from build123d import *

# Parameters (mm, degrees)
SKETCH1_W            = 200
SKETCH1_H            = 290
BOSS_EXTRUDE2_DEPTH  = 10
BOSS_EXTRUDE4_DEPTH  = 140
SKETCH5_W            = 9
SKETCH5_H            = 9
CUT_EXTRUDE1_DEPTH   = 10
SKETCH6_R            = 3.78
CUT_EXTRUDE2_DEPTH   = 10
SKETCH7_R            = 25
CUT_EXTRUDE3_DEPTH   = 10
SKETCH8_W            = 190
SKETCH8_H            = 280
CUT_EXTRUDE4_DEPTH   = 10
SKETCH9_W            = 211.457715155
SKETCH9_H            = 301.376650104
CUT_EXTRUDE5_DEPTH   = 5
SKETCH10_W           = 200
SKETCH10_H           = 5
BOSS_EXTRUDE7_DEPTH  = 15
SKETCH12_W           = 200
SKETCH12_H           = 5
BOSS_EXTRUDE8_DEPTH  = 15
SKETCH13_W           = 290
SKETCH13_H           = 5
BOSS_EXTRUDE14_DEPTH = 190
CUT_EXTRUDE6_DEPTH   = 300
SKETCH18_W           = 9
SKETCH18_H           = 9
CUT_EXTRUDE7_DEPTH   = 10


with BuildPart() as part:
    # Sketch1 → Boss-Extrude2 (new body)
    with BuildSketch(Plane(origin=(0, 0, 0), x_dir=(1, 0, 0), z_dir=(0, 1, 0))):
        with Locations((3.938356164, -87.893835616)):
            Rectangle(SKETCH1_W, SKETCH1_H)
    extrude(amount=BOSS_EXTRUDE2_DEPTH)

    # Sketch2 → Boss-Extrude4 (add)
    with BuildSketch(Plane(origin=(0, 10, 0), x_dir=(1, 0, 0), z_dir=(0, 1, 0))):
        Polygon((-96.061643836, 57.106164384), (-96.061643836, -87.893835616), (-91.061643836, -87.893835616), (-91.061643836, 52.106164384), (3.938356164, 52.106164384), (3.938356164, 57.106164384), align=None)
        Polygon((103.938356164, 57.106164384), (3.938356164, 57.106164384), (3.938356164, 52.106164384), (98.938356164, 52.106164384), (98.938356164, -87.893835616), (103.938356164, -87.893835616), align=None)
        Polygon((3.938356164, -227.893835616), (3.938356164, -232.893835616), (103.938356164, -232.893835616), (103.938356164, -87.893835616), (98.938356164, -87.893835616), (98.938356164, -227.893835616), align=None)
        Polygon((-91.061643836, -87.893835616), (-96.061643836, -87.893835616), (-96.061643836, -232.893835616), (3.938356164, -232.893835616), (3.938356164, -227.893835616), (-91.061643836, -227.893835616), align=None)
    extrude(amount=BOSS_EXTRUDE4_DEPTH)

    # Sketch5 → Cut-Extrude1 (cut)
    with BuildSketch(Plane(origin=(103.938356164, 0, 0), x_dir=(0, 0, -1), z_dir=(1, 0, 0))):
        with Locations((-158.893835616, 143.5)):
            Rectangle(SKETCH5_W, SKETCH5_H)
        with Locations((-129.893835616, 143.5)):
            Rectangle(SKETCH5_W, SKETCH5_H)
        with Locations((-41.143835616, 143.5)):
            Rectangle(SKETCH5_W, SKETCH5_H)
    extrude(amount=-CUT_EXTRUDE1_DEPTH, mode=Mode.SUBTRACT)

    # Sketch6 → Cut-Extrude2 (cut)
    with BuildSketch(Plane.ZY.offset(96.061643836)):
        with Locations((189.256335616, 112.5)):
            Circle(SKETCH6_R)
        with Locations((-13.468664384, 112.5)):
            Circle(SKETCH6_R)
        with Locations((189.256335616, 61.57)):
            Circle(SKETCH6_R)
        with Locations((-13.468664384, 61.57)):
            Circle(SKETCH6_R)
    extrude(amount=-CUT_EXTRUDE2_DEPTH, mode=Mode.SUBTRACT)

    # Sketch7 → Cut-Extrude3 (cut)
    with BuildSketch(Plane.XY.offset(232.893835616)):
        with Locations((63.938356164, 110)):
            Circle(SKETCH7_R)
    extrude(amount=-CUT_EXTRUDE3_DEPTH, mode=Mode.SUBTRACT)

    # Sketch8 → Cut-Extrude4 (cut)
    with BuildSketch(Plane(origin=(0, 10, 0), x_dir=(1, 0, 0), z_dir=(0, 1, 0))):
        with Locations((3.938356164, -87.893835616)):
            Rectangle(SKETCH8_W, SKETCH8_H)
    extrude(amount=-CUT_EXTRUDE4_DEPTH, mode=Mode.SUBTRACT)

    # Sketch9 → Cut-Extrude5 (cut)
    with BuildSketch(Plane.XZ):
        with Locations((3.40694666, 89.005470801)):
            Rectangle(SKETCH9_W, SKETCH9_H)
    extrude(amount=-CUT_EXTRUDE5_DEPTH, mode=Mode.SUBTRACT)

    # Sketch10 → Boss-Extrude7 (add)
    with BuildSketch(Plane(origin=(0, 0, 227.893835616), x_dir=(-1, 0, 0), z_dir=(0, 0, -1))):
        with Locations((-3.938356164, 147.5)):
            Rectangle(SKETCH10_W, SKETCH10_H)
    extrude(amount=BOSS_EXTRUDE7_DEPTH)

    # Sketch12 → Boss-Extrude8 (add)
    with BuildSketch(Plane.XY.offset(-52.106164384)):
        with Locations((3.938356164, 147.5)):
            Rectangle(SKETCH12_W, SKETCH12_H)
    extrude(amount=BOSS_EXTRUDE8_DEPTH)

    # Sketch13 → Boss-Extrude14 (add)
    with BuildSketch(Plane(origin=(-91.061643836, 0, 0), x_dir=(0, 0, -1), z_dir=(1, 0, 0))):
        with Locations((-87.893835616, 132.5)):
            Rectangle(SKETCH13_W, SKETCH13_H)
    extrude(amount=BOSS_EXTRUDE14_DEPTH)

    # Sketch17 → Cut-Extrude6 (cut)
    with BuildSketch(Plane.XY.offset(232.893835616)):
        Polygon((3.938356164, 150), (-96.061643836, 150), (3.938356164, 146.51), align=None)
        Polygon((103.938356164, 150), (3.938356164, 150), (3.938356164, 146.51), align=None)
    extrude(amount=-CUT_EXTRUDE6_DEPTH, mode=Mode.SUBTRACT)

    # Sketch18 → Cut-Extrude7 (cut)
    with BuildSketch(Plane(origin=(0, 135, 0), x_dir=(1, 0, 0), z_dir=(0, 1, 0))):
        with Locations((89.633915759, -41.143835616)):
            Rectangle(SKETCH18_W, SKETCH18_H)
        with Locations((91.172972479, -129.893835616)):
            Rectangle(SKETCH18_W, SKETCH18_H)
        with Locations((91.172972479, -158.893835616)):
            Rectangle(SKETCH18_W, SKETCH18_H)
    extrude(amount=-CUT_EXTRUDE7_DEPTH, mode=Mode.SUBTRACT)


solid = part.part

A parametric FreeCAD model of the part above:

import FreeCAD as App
import Part
import Sketcher

doc = App.newDocument("Part")
params = doc.addObject("Spreadsheet::Sheet", "Params")
for row, (alias, value) in enumerate([
    ("sketch1_width", "200 mm"),
    ("sketch1_height", "290 mm"),
    ("pad1_length", "10 mm"),
    ("sketch2_width", "200 mm"),
    ("sketch2_width2", "190 mm"),
    ("sketch2_height", "290 mm"),
    ("sketch2_height2", "280 mm"),
    ("pad2_length", "140 mm"),
    ("sketch3_width", "9 mm"),
    ("pocket1_length", "10 mm"),
    ("sketch4_diameter", "7.56 mm"),
    ("pocket2_length", "10 mm"),
    ("sketch5_diameter", "50 mm"),
    ("pocket3_length", "10 mm"),
    ("sketch6_width", "190 mm"),
    ("sketch6_height", "280 mm"),
    ("pocket4_length", "10 mm"),
    ("pocket5_length", "5 mm"),
    ("sketch8_width", "200 mm"),
    ("sketch8_height", "5 mm"),
    ("pad3_length", "15 mm"),
    ("sketch9_width", "200 mm"),
    ("sketch9_height", "5 mm"),
    ("pad4_length", "15 mm"),
    ("sketch10_width", "5 mm"),
    ("sketch10_height", "290 mm"),
    ("pad5_length", "190 mm"),
    ("sketch11_width", "200 mm"),
    ("pocket6_length", "300 mm"),
    ("sketch12_width", "9 mm"),
    ("pocket7_length", "10 mm"),
], start=1):
    params.set(f"A{row}", alias)
    params.set(f"B{row}", "=" + value)
    params.setAlias(f"B{row}", alias)

body = doc.addObject("PartDesign::Body", "Body")

sketch1 = body.newObject("Sketcher::SketchObject", "Sketch")
sketch1.AttachmentSupport = (doc.getObject("XZ_Plane"), [""])
sketch1.MapMode = "FlatFace"
sketch1.addGeometry([
    Part.LineSegment(App.Vector(-96, -57, 0), App.Vector(-96, 233, 0)),
    Part.LineSegment(App.Vector(-96, 233, 0), App.Vector(104, 233, 0)),
    Part.LineSegment(App.Vector(104, 233, 0), App.Vector(104, -57, 0)),
    Part.LineSegment(App.Vector(104, -57, 0), App.Vector(-96, -57, 0)),
], False)
sketch1.addConstraint([
    Sketcher.Constraint("Coincident", 0, 2, 1, 1),
    Sketcher.Constraint("Coincident", 1, 2, 2, 1),
    Sketcher.Constraint("Coincident", 2, 2, 3, 1),
    Sketcher.Constraint("Coincident", 3, 2, 0, 1),
    Sketcher.Constraint("Vertical", 0),
    Sketcher.Constraint("Horizontal", 1),
    Sketcher.Constraint("Vertical", 2),
    Sketcher.Constraint("Horizontal", 3),
    Sketcher.Constraint("DistanceX", 1, 1, 1, 2, 200.0),
    Sketcher.Constraint("DistanceY", 0, 1, 0, 2, 290.0),
    Sketcher.Constraint("DistanceX", 0, 2, -1, 1, 96.061644),
    Sketcher.Constraint("DistanceY", -1, 1, 0, 2, 232.893836),
])
sketch1.setExpression("Constraints[8]", "Params.sketch1_width")
sketch1.setExpression("Constraints[9]", "Params.sketch1_height")
pad1 = body.newObject("PartDesign::Pad", "Pad")
pad1.Profile = sketch1
pad1.setExpression("Length", "Params.pad1_length")
pad1.Reversed = True

sketch2 = body.newObject("Sketcher::SketchObject", "Sketch001")
sketch2.AttachmentSupport = (doc.getObject("XZ_Plane"), [""])
sketch2.MapMode = "FlatFace"
sketch2.AttachmentOffset = App.Placement(App.Vector(0, 0, -10), App.Rotation())
sketch2.addGeometry([
    Part.LineSegment(App.Vector(-96, -57, 0), App.Vector(-96, 233, 0)),
    Part.LineSegment(App.Vector(-96, 233, 0), App.Vector(104, 233, 0)),
    Part.LineSegment(App.Vector(104, 233, 0), App.Vector(104, -57, 0)),
    Part.LineSegment(App.Vector(104, -57, 0), App.Vector(-96, -57, 0)),
    Part.LineSegment(App.Vector(-91, -52, 0), App.Vector(99, -52, 0)),
    Part.LineSegment(App.Vector(99, -52, 0), App.Vector(99, 228, 0)),
    Part.LineSegment(App.Vector(99, 228, 0), App.Vector(-91, 228, 0)),
    Part.LineSegment(App.Vector(-91, 228, 0), App.Vector(-91, -52, 0)),
], False)
sketch2.addConstraint([
    Sketcher.Constraint("Coincident", 0, 2, 1, 1),
    Sketcher.Constraint("Coincident", 1, 2, 2, 1),
    Sketcher.Constraint("Coincident", 2, 2, 3, 1),
    Sketcher.Constraint("Coincident", 3, 2, 0, 1),
    Sketcher.Constraint("Coincident", 4, 2, 5, 1),
    Sketcher.Constraint("Coincident", 5, 2, 6, 1),
    Sketcher.Constraint("Coincident", 6, 2, 7, 1),
    Sketcher.Constraint("Coincident", 7, 2, 4, 1),
    Sketcher.Constraint("Vertical", 0),
    Sketcher.Constraint("Horizontal", 1),
    Sketcher.Constraint("Vertical", 2),
    Sketcher.Constraint("Horizontal", 3),
    Sketcher.Constraint("Horizontal", 4),
    Sketcher.Constraint("Vertical", 5),
    Sketcher.Constraint("Horizontal", 6),
    Sketcher.Constraint("Vertical", 7),
    Sketcher.Constraint("DistanceX", 1, 1, 1, 2, 200.0),
    Sketcher.Constraint("DistanceX", 4, 1, 4, 2, 190.0),
    Sketcher.Constraint("DistanceY", 0, 1, 0, 2, 290.0),
    Sketcher.Constraint("DistanceY", 5, 1, 5, 2, 280.0),
    Sketcher.Constraint("DistanceX", 4, 2, 2, 2, 5.0),
    Sketcher.Constraint("DistanceY", 2, 2, 4, 2, 5.0),
    Sketcher.Constraint("DistanceX", 0, 2, -1, 1, 96.061644),
    Sketcher.Constraint("DistanceY", -1, 1, 0, 2, 232.893836),
])
sketch2.setExpression("Constraints[16]", "Params.sketch2_width")
sketch2.setExpression("Constraints[17]", "Params.sketch2_width2")
sketch2.setExpression("Constraints[18]", "Params.sketch2_height")
sketch2.setExpression("Constraints[19]", "Params.sketch2_height2")
pad2 = body.newObject("PartDesign::Pad", "Pad001")
pad2.Profile = sketch2
pad2.setExpression("Length", "Params.pad2_length")
pad2.Reversed = True

sketch3 = body.newObject("Sketcher::SketchObject", "Sketch002")
sketch3.AttachmentSupport = (doc.getObject("YZ_Plane"), [""])
sketch3.MapMode = "FlatFace"
sketch3.AttachmentOffset = App.Placement(App.Vector(0, 0, 103.938356), App.Rotation())
sketch3.addGeometry([
    Part.LineSegment(App.Vector(148, 163, 0), App.Vector(139, 163, 0)),
    Part.LineSegment(App.Vector(139, 163, 0), App.Vector(139, 154, 0)),
    Part.LineSegment(App.Vector(139, 154, 0), App.Vector(148, 154, 0)),
    Part.LineSegment(App.Vector(148, 154, 0), App.Vector(148, 163, 0)),
    Part.LineSegment(App.Vector(148, 134, 0), App.Vector(139, 134, 0)),
    Part.LineSegment(App.Vector(139, 134, 0), App.Vector(139, 125, 0)),
    Part.LineSegment(App.Vector(139, 125, 0), App.Vector(148, 125, 0)),
    Part.LineSegment(App.Vector(148, 125, 0), App.Vector(148, 134, 0)),
    Part.LineSegment(App.Vector(148, 46, 0), App.Vector(139, 46, 0)),
    Part.LineSegment(App.Vector(139, 46, 0), App.Vector(139, 37, 0)),
    Part.LineSegment(App.Vector(139, 37, 0), App.Vector(148, 37, 0)),
    Part.LineSegment(App.Vector(148, 37, 0), App.Vector(148, 46, 0)),
], False)
sketch3.addConstraint([
    Sketcher.Constraint("Coincident", 0, 2, 1, 1),
    Sketcher.Constraint("Coincident", 1, 2, 2, 1),
    Sketcher.Constraint("Coincident", 2, 2, 3, 1),
    Sketcher.Constraint("Coincident", 3, 2, 0, 1),
    Sketcher.Constraint("Coincident", 4, 2, 5, 1),
    Sketcher.Constraint("Coincident", 5, 2, 6, 1),
    Sketcher.Constraint("Coincident", 6, 2, 7, 1),
    Sketcher.Constraint("Coincident", 7, 2, 4, 1),
    Sketcher.Constraint("Coincident", 8, 2, 9, 1),
    Sketcher.Constraint("Coincident", 9, 2, 10, 1),
    Sketcher.Constraint("Coincident", 10, 2, 11, 1),
    Sketcher.Constraint("Coincident", 11, 2, 8, 1),
    Sketcher.Constraint("Horizontal", 0),
    Sketcher.Constraint("Vertical", 1),
    Sketcher.Constraint("Horizontal", 2),
    Sketcher.Constraint("Vertical", 3),
    Sketcher.Constraint("Horizontal", 4),
    Sketcher.Constraint("Vertical", 5),
    Sketcher.Constraint("Horizontal", 6),
    Sketcher.Constraint("Vertical", 7),
    Sketcher.Constraint("Horizontal", 8),
    Sketcher.Constraint("Vertical", 9),
    Sketcher.Constraint("Horizontal", 10),
    Sketcher.Constraint("Vertical", 11),
    Sketcher.Constraint("Vertical", 1, 2, 4, 2),
    Sketcher.Constraint("Vertical", 3, 2, 6, 2),
    Sketcher.Constraint("Vertical", 5, 2, 8, 2),
    Sketcher.Constraint("Vertical", 7, 2, 10, 2),
    Sketcher.Constraint("Equal", 10, 1),
    Sketcher.Constraint("Equal", 3, 5),
    Sketcher.Constraint("Equal", 7, 9),
    Sketcher.Constraint("DistanceX", 0, 2, 0, 1, 9.0),
    Sketcher.Constraint("DistanceX", -1, 1, 0, 2, 139.0),
    Sketcher.Constraint("DistanceY", 4, 2, 1, 2, 20.0),
    Sketcher.Constraint("DistanceY", 8, 2, 5, 2, 79.75),
    Sketcher.Constraint("DistanceY", -1, 1, 0, 2, 163.393836),
])
sketch3.setExpression("Constraints[31]", "Params.sketch3_width")
pocket1 = body.newObject("PartDesign::Pocket", "Pocket")
pocket1.Profile = sketch3
pocket1.setExpression("Length", "Params.pocket1_length")

sketch4 = body.newObject("Sketcher::SketchObject", "Sketch003")
sketch4.AttachmentSupport = (doc.getObject("YZ_Plane"), [""])
sketch4.MapMode = "FlatFace"
sketch4.AttachmentOffset = App.Placement(App.Vector(0, 0, -96.061644), App.Rotation())
sketch4.addGeometry([
    Part.Circle(App.Vector(112.5, 189.3, 0), App.Vector(0, 0, 1), 3.8),
    Part.Circle(App.Vector(112.5, -13.5, 0), App.Vector(0, 0, 1), 3.8),
    Part.Circle(App.Vector(61.6, 189.3, 0), App.Vector(0, 0, 1), 3.8),
    Part.Circle(App.Vector(61.6, -13.5, 0), App.Vector(0, 0, 1), 3.8),
], False)
sketch4.addConstraint([
    Sketcher.Constraint("Equal", 0, 1),
    Sketcher.Constraint("Equal", 1, 2),
    Sketcher.Constraint("Equal", 2, 3),
    Sketcher.Constraint("Horizontal", 0, 3, 2, 3),
    Sketcher.Constraint("Horizontal", 1, 3, 3, 3),
    Sketcher.Constraint("Vertical", 0, 3, 1, 3),
    Sketcher.Constraint("Vertical", 2, 3, 3, 3),
    Sketcher.Constraint("Diameter", 0, 7.56),
    Sketcher.Constraint("DistanceX", -1, 1, 0, 3, 112.5),
    Sketcher.Constraint("DistanceX", -1, 1, 2, 3, 61.57),
    Sketcher.Constraint("DistanceY", 1, 3, 0, 3, 202.725),
    Sketcher.Constraint("DistanceY", -1, 1, 0, 3, 189.256336),
])
sketch4.setExpression("Constraints[7]", "Params.sketch4_diameter")
pocket2 = body.newObject("PartDesign::Pocket", "Pocket001")
pocket2.Profile = sketch4
pocket2.setExpression("Length", "Params.pocket2_length")
pocket2.Reversed = True

sketch5 = body.newObject("Sketcher::SketchObject", "Sketch004")
sketch5.AttachmentSupport = (doc.getObject("XY_Plane"), [""])
sketch5.MapMode = "FlatFace"
sketch5.AttachmentOffset = App.Placement(App.Vector(0, 0, 232.893836), App.Rotation())
sketch5.addGeometry(Part.Circle(App.Vector(64, 110, 0), App.Vector(0, 0, 1), 25), False)
sketch5.addConstraint([
    Sketcher.Constraint("Diameter", 0, 50.0),
    Sketcher.Constraint("DistanceY", -1, 1, 0, 3, 110.0),
    Sketcher.Constraint("DistanceX", -1, 1, 0, 3, 63.938356),
])
sketch5.setExpression("Constraints[0]", "Params.sketch5_diameter")
pocket3 = body.newObject("PartDesign::Pocket", "Pocket002")
pocket3.Profile = sketch5
pocket3.setExpression("Length", "Params.pocket3_length")

sketch6 = body.newObject("Sketcher::SketchObject", "Sketch005")
sketch6.AttachmentSupport = (doc.getObject("XZ_Plane"), [""])
sketch6.MapMode = "FlatFace"
sketch6.AttachmentOffset = App.Placement(App.Vector(0, 0, -10), App.Rotation())
sketch6.addGeometry([
    Part.LineSegment(App.Vector(-91, -52, 0), App.Vector(-91, 228, 0)),
    Part.LineSegment(App.Vector(-91, 228, 0), App.Vector(99, 228, 0)),
    Part.LineSegment(App.Vector(99, 228, 0), App.Vector(99, -52, 0)),
    Part.LineSegment(App.Vector(99, -52, 0), App.Vector(-91, -52, 0)),
], False)
sketch6.addConstraint([
    Sketcher.Constraint("Coincident", 0, 2, 1, 1),
    Sketcher.Constraint("Coincident", 1, 2, 2, 1),
    Sketcher.Constraint("Coincident", 2, 2, 3, 1),
    Sketcher.Constraint("Coincident", 3, 2, 0, 1),
    Sketcher.Constraint("Vertical", 0),
    Sketcher.Constraint("Horizontal", 1),
    Sketcher.Constraint("Vertical", 2),
    Sketcher.Constraint("Horizontal", 3),
    Sketcher.Constraint("DistanceX", 1, 1, 1, 2, 190.0),
    Sketcher.Constraint("DistanceY", 0, 1, 0, 2, 280.0),
    Sketcher.Constraint("DistanceX", 0, 2, -1, 1, 91.061644),
    Sketcher.Constraint("DistanceY", -1, 1, 0, 2, 227.893836),
])
sketch6.setExpression("Constraints[8]", "Params.sketch6_width")
sketch6.setExpression("Constraints[9]", "Params.sketch6_height")
pocket4 = body.newObject("PartDesign::Pocket", "Pocket003")
pocket4.Profile = sketch6
pocket4.setExpression("Length", "Params.pocket4_length")
pocket4.Reversed = True

sketch7 = body.newObject("Sketcher::SketchObject", "Sketch006")
sketch7.AttachmentSupport = (doc.getObject("XZ_Plane"), [""])
sketch7.MapMode = "FlatFace"
sketch7.addGeometry([
    Part.LineSegment(App.Vector(-102, 240, 0), App.Vector(-102, -62, 0)),
    Part.LineSegment(App.Vector(-102, -62, 0), App.Vector(109, -62, 0)),
    Part.LineSegment(App.Vector(109, -62, 0), App.Vector(109, 240, 0)),
    Part.LineSegment(App.Vector(109, 240, 0), App.Vector(-102, 240, 0)),
], False)
sketch7.addConstraint([
    Sketcher.Constraint("Coincident", 0, 2, 1, 1),
    Sketcher.Constraint("Coincident", 1, 2, 2, 1),
    Sketcher.Constraint("Coincident", 2, 2, 3, 1),
    Sketcher.Constraint("Coincident", 3, 2, 0, 1),
    Sketcher.Constraint("Vertical", 0),
    Sketcher.Constraint("Horizontal", 1),
    Sketcher.Constraint("Vertical", 2),
    Sketcher.Constraint("Horizontal", 3),
    Sketcher.Constraint("DistanceY", 0, 2, 0, 1, 301.37665),
    Sketcher.Constraint("DistanceX", 1, 1, 1, 2, 211.457715),
    Sketcher.Constraint("DistanceX", 0, 2, -1, 1, 102.321911),
    Sketcher.Constraint("DistanceY", 0, 2, -1, 1, 61.682854),
])
pocket5 = body.newObject("PartDesign::Pocket", "Pocket004")
pocket5.Profile = sketch7
pocket5.setExpression("Length", "Params.pocket5_length")

sketch8 = body.newObject("Sketcher::SketchObject", "Sketch007")
sketch8.AttachmentSupport = (doc.getObject("XY_Plane"), [""])
sketch8.MapMode = "FlatFace"
sketch8.AttachmentOffset = App.Placement(App.Vector(0, 0, 227.893836), App.Rotation())
sketch8.addGeometry([
    Part.LineSegment(App.Vector(104, 150, 0), App.Vector(104, 145, 0)),
    Part.LineSegment(App.Vector(104, 145, 0), App.Vector(-96, 145, 0)),
    Part.LineSegment(App.Vector(-96, 145, 0), App.Vector(-96, 150, 0)),
    Part.LineSegment(App.Vector(-96, 150, 0), App.Vector(104, 150, 0)),
], False)
sketch8.addConstraint([
    Sketcher.Constraint("Coincident", 0, 2, 1, 1),
    Sketcher.Constraint("Coincident", 1, 2, 2, 1),
    Sketcher.Constraint("Coincident", 2, 2, 3, 1),
    Sketcher.Constraint("Coincident", 3, 2, 0, 1),
    Sketcher.Constraint("Vertical", 0),
    Sketcher.Constraint("Horizontal", 1),
    Sketcher.Constraint("Vertical", 2),
    Sketcher.Constraint("Horizontal", 3),
    Sketcher.Constraint("DistanceX", 1, 2, 1, 1, 200.0),
    Sketcher.Constraint("DistanceY", 0, 2, 0, 1, 5.0),
    Sketcher.Constraint("DistanceY", -1, 1, 0, 2, 145.0),
    Sketcher.Constraint("DistanceX", -1, 1, 0, 2, 103.938356),
])
sketch8.setExpression("Constraints[8]", "Params.sketch8_width")
sketch8.setExpression("Constraints[9]", "Params.sketch8_height")
pad3 = body.newObject("PartDesign::Pad", "Pad002")
pad3.Profile = sketch8
pad3.setExpression("Length", "Params.pad3_length")
pad3.Reversed = True

sketch9 = body.newObject("Sketcher::SketchObject", "Sketch008")
sketch9.AttachmentSupport = (doc.getObject("XY_Plane"), [""])
sketch9.MapMode = "FlatFace"
sketch9.AttachmentOffset = App.Placement(App.Vector(0, 0, -52.106164), App.Rotation())
sketch9.addGeometry([
    Part.LineSegment(App.Vector(-96, 150, 0), App.Vector(-96, 145, 0)),
    Part.LineSegment(App.Vector(-96, 145, 0), App.Vector(104, 145, 0)),
    Part.LineSegment(App.Vector(104, 145, 0), App.Vector(104, 150, 0)),
    Part.LineSegment(App.Vector(104, 150, 0), App.Vector(-96, 150, 0)),
], False)
sketch9.addConstraint([
    Sketcher.Constraint("Coincident", 0, 2, 1, 1),
    Sketcher.Constraint("Coincident", 1, 2, 2, 1),
    Sketcher.Constraint("Coincident", 2, 2, 3, 1),
    Sketcher.Constraint("Coincident", 3, 2, 0, 1),
    Sketcher.Constraint("Vertical", 0),
    Sketcher.Constraint("Horizontal", 1),
    Sketcher.Constraint("Vertical", 2),
    Sketcher.Constraint("Horizontal", 3),
    Sketcher.Constraint("DistanceX", 1, 1, 1, 2, 200.0),
    Sketcher.Constraint("DistanceY", 0, 2, 0, 1, 5.0),
    Sketcher.Constraint("DistanceY", -1, 1, 0, 2, 145.0),
    Sketcher.Constraint("DistanceX", 0, 2, -1, 1, 96.061644),
])
sketch9.setExpression("Constraints[8]", "Params.sketch9_width")
sketch9.setExpression("Constraints[9]", "Params.sketch9_height")
pad4 = body.newObject("PartDesign::Pad", "Pad003")
pad4.Profile = sketch9
pad4.setExpression("Length", "Params.pad4_length")

sketch10 = body.newObject("Sketcher::SketchObject", "Sketch009")
sketch10.AttachmentSupport = (doc.getObject("YZ_Plane"), [""])
sketch10.MapMode = "FlatFace"
sketch10.AttachmentOffset = App.Placement(App.Vector(0, 0, -91.061644), App.Rotation())
sketch10.addGeometry([
    Part.LineSegment(App.Vector(135, 233, 0), App.Vector(130, 233, 0)),
    Part.LineSegment(App.Vector(130, 233, 0), App.Vector(130, -57, 0)),
    Part.LineSegment(App.Vector(130, -57, 0), App.Vector(135, -57, 0)),
    Part.LineSegment(App.Vector(135, -57, 0), App.Vector(135, 233, 0)),
], False)
sketch10.addConstraint([
    Sketcher.Constraint("Coincident", 0, 2, 1, 1),
    Sketcher.Constraint("Coincident", 1, 2, 2, 1),
    Sketcher.Constraint("Coincident", 2, 2, 3, 1),
    Sketcher.Constraint("Coincident", 3, 2, 0, 1),
    Sketcher.Constraint("Horizontal", 0),
    Sketcher.Constraint("Vertical", 1),
    Sketcher.Constraint("Horizontal", 2),
    Sketcher.Constraint("Vertical", 3),
    Sketcher.Constraint("DistanceX", 0, 2, 0, 1, 5.0),
    Sketcher.Constraint("DistanceY", 1, 2, 1, 1, 290.0),
    Sketcher.Constraint("DistanceX", -1, 1, 0, 2, 130.0),
    Sketcher.Constraint("DistanceY", -1, 1, 0, 2, 232.893836),
])
sketch10.setExpression("Constraints[8]", "Params.sketch10_width")
sketch10.setExpression("Constraints[9]", "Params.sketch10_height")
pad5 = body.newObject("PartDesign::Pad", "Pad004")
pad5.Profile = sketch10
pad5.setExpression("Length", "Params.pad5_length")

sketch11 = body.newObject("Sketcher::SketchObject", "Sketch010")
sketch11.AttachmentSupport = (doc.getObject("XY_Plane"), [""])
sketch11.MapMode = "FlatFace"
sketch11.AttachmentOffset = App.Placement(App.Vector(0, 0, 232.893836), App.Rotation())
sketch11.addGeometry([
    Part.LineSegment(App.Vector(-96, 150, 0), App.Vector(4, 147, 0)),
    Part.LineSegment(App.Vector(4, 147, 0), App.Vector(104, 150, 0)),
    Part.LineSegment(App.Vector(104, 150, 0), App.Vector(-96, 150, 0)),
], False)
sketch11.addConstraint([
    Sketcher.Constraint("Coincident", 0, 2, 1, 1),
    Sketcher.Constraint("Coincident", 1, 2, 2, 1),
    Sketcher.Constraint("Coincident", 2, 2, 0, 1),
    Sketcher.Constraint("Horizontal", 2),
    Sketcher.Constraint("Equal", 0, 1),
    Sketcher.Constraint("DistanceX", 2, 2, 2, 1, 200.0),
    Sketcher.Constraint("DistanceY", -1, 1, 1, 2, 150.0),
    Sketcher.Constraint("DistanceY", -1, 1, 0, 2, 146.51),
    Sketcher.Constraint("DistanceX", -1, 1, 0, 2, 3.938356),
])
sketch11.setExpression("Constraints[5]", "Params.sketch11_width")
pocket6 = body.newObject("PartDesign::Pocket", "Pocket005")
pocket6.Profile = sketch11
pocket6.setExpression("Length", "Params.pocket6_length")

sketch12 = body.newObject("Sketcher::SketchObject", "Sketch011")
sketch12.AttachmentSupport = (doc.getObject("XZ_Plane"), [""])
sketch12.MapMode = "FlatFace"
sketch12.AttachmentOffset = App.Placement(App.Vector(0, 0, -135), App.Rotation())
sketch12.addGeometry([
    Part.LineSegment(App.Vector(85, 37, 0), App.Vector(85, 46, 0)),
    Part.LineSegment(App.Vector(85, 46, 0), App.Vector(94, 46, 0)),
    Part.LineSegment(App.Vector(94, 46, 0), App.Vector(94, 37, 0)),
    Part.LineSegment(App.Vector(94, 37, 0), App.Vector(85, 37, 0)),
    Part.LineSegment(App.Vector(87, 125, 0), App.Vector(87, 134, 0)),
    Part.LineSegment(App.Vector(87, 134, 0), App.Vector(96, 134, 0)),
    Part.LineSegment(App.Vector(96, 134, 0), App.Vector(96, 125, 0)),
    Part.LineSegment(App.Vector(96, 125, 0), App.Vector(87, 125, 0)),
    Part.LineSegment(App.Vector(87, 154, 0), App.Vector(87, 163, 0)),
    Part.LineSegment(App.Vector(87, 163, 0), App.Vector(96, 163, 0)),
    Part.LineSegment(App.Vector(96, 163, 0), App.Vector(96, 154, 0)),
    Part.LineSegment(App.Vector(96, 154, 0), App.Vector(87, 154, 0)),
], False)
sketch12.addConstraint([
    Sketcher.Constraint("Coincident", 0, 2, 1, 1),
    Sketcher.Constraint("Coincident", 1, 2, 2, 1),
    Sketcher.Constraint("Coincident", 2, 2, 3, 1),
    Sketcher.Constraint("Coincident", 3, 2, 0, 1),
    Sketcher.Constraint("Coincident", 4, 2, 5, 1),
    Sketcher.Constraint("Coincident", 5, 2, 6, 1),
    Sketcher.Constraint("Coincident", 6, 2, 7, 1),
    Sketcher.Constraint("Coincident", 7, 2, 4, 1),
    Sketcher.Constraint("Coincident", 8, 2, 9, 1),
    Sketcher.Constraint("Coincident", 9, 2, 10, 1),
    Sketcher.Constraint("Coincident", 10, 2, 11, 1),
    Sketcher.Constraint("Coincident", 11, 2, 8, 1),
    Sketcher.Constraint("Vertical", 0),
    Sketcher.Constraint("Horizontal", 1),
    Sketcher.Constraint("Vertical", 2),
    Sketcher.Constraint("Horizontal", 3),
    Sketcher.Constraint("Vertical", 4),
    Sketcher.Constraint("Horizontal", 5),
    Sketcher.Constraint("Vertical", 6),
    Sketcher.Constraint("Horizontal", 7),
    Sketcher.Constraint("Vertical", 8),
    Sketcher.Constraint("Horizontal", 9),
    Sketcher.Constraint("Vertical", 10),
    Sketcher.Constraint("Horizontal", 11),
    Sketcher.Constraint("Vertical", 7, 2, 8, 2),
    Sketcher.Constraint("Vertical", 6, 2, 9, 2),
    Sketcher.Constraint("Equal", 3, 5),
    Sketcher.Constraint("Equal", 11, 0),
    Sketcher.Constraint("Equal", 2, 4),
    Sketcher.Constraint("Equal", 6, 8),
    Sketcher.Constraint("DistanceX", 1, 1, 1, 2, 9.0),
    Sketcher.Constraint("DistanceY", 4, 2, 8, 2, 29.0),
    Sketcher.Constraint("DistanceY", 0, 2, 4, 2, 88.75),
    Sketcher.Constraint("DistanceX", -1, 1, 0, 2, 85.133916),
    Sketcher.Constraint("DistanceY", -1, 1, 0, 2, 45.643836),
    Sketcher.Constraint("DistanceX", -1, 1, 4, 2, 86.672972),
])
sketch12.setExpression("Constraints[30]", "Params.sketch12_width")
pocket7 = body.newObject("PartDesign::Pocket", "Pocket006")
pocket7.Profile = sketch12
pocket7.setExpression("Length", "Params.pocket7_length")
pocket7.Reversed = True

doc.recompute()
